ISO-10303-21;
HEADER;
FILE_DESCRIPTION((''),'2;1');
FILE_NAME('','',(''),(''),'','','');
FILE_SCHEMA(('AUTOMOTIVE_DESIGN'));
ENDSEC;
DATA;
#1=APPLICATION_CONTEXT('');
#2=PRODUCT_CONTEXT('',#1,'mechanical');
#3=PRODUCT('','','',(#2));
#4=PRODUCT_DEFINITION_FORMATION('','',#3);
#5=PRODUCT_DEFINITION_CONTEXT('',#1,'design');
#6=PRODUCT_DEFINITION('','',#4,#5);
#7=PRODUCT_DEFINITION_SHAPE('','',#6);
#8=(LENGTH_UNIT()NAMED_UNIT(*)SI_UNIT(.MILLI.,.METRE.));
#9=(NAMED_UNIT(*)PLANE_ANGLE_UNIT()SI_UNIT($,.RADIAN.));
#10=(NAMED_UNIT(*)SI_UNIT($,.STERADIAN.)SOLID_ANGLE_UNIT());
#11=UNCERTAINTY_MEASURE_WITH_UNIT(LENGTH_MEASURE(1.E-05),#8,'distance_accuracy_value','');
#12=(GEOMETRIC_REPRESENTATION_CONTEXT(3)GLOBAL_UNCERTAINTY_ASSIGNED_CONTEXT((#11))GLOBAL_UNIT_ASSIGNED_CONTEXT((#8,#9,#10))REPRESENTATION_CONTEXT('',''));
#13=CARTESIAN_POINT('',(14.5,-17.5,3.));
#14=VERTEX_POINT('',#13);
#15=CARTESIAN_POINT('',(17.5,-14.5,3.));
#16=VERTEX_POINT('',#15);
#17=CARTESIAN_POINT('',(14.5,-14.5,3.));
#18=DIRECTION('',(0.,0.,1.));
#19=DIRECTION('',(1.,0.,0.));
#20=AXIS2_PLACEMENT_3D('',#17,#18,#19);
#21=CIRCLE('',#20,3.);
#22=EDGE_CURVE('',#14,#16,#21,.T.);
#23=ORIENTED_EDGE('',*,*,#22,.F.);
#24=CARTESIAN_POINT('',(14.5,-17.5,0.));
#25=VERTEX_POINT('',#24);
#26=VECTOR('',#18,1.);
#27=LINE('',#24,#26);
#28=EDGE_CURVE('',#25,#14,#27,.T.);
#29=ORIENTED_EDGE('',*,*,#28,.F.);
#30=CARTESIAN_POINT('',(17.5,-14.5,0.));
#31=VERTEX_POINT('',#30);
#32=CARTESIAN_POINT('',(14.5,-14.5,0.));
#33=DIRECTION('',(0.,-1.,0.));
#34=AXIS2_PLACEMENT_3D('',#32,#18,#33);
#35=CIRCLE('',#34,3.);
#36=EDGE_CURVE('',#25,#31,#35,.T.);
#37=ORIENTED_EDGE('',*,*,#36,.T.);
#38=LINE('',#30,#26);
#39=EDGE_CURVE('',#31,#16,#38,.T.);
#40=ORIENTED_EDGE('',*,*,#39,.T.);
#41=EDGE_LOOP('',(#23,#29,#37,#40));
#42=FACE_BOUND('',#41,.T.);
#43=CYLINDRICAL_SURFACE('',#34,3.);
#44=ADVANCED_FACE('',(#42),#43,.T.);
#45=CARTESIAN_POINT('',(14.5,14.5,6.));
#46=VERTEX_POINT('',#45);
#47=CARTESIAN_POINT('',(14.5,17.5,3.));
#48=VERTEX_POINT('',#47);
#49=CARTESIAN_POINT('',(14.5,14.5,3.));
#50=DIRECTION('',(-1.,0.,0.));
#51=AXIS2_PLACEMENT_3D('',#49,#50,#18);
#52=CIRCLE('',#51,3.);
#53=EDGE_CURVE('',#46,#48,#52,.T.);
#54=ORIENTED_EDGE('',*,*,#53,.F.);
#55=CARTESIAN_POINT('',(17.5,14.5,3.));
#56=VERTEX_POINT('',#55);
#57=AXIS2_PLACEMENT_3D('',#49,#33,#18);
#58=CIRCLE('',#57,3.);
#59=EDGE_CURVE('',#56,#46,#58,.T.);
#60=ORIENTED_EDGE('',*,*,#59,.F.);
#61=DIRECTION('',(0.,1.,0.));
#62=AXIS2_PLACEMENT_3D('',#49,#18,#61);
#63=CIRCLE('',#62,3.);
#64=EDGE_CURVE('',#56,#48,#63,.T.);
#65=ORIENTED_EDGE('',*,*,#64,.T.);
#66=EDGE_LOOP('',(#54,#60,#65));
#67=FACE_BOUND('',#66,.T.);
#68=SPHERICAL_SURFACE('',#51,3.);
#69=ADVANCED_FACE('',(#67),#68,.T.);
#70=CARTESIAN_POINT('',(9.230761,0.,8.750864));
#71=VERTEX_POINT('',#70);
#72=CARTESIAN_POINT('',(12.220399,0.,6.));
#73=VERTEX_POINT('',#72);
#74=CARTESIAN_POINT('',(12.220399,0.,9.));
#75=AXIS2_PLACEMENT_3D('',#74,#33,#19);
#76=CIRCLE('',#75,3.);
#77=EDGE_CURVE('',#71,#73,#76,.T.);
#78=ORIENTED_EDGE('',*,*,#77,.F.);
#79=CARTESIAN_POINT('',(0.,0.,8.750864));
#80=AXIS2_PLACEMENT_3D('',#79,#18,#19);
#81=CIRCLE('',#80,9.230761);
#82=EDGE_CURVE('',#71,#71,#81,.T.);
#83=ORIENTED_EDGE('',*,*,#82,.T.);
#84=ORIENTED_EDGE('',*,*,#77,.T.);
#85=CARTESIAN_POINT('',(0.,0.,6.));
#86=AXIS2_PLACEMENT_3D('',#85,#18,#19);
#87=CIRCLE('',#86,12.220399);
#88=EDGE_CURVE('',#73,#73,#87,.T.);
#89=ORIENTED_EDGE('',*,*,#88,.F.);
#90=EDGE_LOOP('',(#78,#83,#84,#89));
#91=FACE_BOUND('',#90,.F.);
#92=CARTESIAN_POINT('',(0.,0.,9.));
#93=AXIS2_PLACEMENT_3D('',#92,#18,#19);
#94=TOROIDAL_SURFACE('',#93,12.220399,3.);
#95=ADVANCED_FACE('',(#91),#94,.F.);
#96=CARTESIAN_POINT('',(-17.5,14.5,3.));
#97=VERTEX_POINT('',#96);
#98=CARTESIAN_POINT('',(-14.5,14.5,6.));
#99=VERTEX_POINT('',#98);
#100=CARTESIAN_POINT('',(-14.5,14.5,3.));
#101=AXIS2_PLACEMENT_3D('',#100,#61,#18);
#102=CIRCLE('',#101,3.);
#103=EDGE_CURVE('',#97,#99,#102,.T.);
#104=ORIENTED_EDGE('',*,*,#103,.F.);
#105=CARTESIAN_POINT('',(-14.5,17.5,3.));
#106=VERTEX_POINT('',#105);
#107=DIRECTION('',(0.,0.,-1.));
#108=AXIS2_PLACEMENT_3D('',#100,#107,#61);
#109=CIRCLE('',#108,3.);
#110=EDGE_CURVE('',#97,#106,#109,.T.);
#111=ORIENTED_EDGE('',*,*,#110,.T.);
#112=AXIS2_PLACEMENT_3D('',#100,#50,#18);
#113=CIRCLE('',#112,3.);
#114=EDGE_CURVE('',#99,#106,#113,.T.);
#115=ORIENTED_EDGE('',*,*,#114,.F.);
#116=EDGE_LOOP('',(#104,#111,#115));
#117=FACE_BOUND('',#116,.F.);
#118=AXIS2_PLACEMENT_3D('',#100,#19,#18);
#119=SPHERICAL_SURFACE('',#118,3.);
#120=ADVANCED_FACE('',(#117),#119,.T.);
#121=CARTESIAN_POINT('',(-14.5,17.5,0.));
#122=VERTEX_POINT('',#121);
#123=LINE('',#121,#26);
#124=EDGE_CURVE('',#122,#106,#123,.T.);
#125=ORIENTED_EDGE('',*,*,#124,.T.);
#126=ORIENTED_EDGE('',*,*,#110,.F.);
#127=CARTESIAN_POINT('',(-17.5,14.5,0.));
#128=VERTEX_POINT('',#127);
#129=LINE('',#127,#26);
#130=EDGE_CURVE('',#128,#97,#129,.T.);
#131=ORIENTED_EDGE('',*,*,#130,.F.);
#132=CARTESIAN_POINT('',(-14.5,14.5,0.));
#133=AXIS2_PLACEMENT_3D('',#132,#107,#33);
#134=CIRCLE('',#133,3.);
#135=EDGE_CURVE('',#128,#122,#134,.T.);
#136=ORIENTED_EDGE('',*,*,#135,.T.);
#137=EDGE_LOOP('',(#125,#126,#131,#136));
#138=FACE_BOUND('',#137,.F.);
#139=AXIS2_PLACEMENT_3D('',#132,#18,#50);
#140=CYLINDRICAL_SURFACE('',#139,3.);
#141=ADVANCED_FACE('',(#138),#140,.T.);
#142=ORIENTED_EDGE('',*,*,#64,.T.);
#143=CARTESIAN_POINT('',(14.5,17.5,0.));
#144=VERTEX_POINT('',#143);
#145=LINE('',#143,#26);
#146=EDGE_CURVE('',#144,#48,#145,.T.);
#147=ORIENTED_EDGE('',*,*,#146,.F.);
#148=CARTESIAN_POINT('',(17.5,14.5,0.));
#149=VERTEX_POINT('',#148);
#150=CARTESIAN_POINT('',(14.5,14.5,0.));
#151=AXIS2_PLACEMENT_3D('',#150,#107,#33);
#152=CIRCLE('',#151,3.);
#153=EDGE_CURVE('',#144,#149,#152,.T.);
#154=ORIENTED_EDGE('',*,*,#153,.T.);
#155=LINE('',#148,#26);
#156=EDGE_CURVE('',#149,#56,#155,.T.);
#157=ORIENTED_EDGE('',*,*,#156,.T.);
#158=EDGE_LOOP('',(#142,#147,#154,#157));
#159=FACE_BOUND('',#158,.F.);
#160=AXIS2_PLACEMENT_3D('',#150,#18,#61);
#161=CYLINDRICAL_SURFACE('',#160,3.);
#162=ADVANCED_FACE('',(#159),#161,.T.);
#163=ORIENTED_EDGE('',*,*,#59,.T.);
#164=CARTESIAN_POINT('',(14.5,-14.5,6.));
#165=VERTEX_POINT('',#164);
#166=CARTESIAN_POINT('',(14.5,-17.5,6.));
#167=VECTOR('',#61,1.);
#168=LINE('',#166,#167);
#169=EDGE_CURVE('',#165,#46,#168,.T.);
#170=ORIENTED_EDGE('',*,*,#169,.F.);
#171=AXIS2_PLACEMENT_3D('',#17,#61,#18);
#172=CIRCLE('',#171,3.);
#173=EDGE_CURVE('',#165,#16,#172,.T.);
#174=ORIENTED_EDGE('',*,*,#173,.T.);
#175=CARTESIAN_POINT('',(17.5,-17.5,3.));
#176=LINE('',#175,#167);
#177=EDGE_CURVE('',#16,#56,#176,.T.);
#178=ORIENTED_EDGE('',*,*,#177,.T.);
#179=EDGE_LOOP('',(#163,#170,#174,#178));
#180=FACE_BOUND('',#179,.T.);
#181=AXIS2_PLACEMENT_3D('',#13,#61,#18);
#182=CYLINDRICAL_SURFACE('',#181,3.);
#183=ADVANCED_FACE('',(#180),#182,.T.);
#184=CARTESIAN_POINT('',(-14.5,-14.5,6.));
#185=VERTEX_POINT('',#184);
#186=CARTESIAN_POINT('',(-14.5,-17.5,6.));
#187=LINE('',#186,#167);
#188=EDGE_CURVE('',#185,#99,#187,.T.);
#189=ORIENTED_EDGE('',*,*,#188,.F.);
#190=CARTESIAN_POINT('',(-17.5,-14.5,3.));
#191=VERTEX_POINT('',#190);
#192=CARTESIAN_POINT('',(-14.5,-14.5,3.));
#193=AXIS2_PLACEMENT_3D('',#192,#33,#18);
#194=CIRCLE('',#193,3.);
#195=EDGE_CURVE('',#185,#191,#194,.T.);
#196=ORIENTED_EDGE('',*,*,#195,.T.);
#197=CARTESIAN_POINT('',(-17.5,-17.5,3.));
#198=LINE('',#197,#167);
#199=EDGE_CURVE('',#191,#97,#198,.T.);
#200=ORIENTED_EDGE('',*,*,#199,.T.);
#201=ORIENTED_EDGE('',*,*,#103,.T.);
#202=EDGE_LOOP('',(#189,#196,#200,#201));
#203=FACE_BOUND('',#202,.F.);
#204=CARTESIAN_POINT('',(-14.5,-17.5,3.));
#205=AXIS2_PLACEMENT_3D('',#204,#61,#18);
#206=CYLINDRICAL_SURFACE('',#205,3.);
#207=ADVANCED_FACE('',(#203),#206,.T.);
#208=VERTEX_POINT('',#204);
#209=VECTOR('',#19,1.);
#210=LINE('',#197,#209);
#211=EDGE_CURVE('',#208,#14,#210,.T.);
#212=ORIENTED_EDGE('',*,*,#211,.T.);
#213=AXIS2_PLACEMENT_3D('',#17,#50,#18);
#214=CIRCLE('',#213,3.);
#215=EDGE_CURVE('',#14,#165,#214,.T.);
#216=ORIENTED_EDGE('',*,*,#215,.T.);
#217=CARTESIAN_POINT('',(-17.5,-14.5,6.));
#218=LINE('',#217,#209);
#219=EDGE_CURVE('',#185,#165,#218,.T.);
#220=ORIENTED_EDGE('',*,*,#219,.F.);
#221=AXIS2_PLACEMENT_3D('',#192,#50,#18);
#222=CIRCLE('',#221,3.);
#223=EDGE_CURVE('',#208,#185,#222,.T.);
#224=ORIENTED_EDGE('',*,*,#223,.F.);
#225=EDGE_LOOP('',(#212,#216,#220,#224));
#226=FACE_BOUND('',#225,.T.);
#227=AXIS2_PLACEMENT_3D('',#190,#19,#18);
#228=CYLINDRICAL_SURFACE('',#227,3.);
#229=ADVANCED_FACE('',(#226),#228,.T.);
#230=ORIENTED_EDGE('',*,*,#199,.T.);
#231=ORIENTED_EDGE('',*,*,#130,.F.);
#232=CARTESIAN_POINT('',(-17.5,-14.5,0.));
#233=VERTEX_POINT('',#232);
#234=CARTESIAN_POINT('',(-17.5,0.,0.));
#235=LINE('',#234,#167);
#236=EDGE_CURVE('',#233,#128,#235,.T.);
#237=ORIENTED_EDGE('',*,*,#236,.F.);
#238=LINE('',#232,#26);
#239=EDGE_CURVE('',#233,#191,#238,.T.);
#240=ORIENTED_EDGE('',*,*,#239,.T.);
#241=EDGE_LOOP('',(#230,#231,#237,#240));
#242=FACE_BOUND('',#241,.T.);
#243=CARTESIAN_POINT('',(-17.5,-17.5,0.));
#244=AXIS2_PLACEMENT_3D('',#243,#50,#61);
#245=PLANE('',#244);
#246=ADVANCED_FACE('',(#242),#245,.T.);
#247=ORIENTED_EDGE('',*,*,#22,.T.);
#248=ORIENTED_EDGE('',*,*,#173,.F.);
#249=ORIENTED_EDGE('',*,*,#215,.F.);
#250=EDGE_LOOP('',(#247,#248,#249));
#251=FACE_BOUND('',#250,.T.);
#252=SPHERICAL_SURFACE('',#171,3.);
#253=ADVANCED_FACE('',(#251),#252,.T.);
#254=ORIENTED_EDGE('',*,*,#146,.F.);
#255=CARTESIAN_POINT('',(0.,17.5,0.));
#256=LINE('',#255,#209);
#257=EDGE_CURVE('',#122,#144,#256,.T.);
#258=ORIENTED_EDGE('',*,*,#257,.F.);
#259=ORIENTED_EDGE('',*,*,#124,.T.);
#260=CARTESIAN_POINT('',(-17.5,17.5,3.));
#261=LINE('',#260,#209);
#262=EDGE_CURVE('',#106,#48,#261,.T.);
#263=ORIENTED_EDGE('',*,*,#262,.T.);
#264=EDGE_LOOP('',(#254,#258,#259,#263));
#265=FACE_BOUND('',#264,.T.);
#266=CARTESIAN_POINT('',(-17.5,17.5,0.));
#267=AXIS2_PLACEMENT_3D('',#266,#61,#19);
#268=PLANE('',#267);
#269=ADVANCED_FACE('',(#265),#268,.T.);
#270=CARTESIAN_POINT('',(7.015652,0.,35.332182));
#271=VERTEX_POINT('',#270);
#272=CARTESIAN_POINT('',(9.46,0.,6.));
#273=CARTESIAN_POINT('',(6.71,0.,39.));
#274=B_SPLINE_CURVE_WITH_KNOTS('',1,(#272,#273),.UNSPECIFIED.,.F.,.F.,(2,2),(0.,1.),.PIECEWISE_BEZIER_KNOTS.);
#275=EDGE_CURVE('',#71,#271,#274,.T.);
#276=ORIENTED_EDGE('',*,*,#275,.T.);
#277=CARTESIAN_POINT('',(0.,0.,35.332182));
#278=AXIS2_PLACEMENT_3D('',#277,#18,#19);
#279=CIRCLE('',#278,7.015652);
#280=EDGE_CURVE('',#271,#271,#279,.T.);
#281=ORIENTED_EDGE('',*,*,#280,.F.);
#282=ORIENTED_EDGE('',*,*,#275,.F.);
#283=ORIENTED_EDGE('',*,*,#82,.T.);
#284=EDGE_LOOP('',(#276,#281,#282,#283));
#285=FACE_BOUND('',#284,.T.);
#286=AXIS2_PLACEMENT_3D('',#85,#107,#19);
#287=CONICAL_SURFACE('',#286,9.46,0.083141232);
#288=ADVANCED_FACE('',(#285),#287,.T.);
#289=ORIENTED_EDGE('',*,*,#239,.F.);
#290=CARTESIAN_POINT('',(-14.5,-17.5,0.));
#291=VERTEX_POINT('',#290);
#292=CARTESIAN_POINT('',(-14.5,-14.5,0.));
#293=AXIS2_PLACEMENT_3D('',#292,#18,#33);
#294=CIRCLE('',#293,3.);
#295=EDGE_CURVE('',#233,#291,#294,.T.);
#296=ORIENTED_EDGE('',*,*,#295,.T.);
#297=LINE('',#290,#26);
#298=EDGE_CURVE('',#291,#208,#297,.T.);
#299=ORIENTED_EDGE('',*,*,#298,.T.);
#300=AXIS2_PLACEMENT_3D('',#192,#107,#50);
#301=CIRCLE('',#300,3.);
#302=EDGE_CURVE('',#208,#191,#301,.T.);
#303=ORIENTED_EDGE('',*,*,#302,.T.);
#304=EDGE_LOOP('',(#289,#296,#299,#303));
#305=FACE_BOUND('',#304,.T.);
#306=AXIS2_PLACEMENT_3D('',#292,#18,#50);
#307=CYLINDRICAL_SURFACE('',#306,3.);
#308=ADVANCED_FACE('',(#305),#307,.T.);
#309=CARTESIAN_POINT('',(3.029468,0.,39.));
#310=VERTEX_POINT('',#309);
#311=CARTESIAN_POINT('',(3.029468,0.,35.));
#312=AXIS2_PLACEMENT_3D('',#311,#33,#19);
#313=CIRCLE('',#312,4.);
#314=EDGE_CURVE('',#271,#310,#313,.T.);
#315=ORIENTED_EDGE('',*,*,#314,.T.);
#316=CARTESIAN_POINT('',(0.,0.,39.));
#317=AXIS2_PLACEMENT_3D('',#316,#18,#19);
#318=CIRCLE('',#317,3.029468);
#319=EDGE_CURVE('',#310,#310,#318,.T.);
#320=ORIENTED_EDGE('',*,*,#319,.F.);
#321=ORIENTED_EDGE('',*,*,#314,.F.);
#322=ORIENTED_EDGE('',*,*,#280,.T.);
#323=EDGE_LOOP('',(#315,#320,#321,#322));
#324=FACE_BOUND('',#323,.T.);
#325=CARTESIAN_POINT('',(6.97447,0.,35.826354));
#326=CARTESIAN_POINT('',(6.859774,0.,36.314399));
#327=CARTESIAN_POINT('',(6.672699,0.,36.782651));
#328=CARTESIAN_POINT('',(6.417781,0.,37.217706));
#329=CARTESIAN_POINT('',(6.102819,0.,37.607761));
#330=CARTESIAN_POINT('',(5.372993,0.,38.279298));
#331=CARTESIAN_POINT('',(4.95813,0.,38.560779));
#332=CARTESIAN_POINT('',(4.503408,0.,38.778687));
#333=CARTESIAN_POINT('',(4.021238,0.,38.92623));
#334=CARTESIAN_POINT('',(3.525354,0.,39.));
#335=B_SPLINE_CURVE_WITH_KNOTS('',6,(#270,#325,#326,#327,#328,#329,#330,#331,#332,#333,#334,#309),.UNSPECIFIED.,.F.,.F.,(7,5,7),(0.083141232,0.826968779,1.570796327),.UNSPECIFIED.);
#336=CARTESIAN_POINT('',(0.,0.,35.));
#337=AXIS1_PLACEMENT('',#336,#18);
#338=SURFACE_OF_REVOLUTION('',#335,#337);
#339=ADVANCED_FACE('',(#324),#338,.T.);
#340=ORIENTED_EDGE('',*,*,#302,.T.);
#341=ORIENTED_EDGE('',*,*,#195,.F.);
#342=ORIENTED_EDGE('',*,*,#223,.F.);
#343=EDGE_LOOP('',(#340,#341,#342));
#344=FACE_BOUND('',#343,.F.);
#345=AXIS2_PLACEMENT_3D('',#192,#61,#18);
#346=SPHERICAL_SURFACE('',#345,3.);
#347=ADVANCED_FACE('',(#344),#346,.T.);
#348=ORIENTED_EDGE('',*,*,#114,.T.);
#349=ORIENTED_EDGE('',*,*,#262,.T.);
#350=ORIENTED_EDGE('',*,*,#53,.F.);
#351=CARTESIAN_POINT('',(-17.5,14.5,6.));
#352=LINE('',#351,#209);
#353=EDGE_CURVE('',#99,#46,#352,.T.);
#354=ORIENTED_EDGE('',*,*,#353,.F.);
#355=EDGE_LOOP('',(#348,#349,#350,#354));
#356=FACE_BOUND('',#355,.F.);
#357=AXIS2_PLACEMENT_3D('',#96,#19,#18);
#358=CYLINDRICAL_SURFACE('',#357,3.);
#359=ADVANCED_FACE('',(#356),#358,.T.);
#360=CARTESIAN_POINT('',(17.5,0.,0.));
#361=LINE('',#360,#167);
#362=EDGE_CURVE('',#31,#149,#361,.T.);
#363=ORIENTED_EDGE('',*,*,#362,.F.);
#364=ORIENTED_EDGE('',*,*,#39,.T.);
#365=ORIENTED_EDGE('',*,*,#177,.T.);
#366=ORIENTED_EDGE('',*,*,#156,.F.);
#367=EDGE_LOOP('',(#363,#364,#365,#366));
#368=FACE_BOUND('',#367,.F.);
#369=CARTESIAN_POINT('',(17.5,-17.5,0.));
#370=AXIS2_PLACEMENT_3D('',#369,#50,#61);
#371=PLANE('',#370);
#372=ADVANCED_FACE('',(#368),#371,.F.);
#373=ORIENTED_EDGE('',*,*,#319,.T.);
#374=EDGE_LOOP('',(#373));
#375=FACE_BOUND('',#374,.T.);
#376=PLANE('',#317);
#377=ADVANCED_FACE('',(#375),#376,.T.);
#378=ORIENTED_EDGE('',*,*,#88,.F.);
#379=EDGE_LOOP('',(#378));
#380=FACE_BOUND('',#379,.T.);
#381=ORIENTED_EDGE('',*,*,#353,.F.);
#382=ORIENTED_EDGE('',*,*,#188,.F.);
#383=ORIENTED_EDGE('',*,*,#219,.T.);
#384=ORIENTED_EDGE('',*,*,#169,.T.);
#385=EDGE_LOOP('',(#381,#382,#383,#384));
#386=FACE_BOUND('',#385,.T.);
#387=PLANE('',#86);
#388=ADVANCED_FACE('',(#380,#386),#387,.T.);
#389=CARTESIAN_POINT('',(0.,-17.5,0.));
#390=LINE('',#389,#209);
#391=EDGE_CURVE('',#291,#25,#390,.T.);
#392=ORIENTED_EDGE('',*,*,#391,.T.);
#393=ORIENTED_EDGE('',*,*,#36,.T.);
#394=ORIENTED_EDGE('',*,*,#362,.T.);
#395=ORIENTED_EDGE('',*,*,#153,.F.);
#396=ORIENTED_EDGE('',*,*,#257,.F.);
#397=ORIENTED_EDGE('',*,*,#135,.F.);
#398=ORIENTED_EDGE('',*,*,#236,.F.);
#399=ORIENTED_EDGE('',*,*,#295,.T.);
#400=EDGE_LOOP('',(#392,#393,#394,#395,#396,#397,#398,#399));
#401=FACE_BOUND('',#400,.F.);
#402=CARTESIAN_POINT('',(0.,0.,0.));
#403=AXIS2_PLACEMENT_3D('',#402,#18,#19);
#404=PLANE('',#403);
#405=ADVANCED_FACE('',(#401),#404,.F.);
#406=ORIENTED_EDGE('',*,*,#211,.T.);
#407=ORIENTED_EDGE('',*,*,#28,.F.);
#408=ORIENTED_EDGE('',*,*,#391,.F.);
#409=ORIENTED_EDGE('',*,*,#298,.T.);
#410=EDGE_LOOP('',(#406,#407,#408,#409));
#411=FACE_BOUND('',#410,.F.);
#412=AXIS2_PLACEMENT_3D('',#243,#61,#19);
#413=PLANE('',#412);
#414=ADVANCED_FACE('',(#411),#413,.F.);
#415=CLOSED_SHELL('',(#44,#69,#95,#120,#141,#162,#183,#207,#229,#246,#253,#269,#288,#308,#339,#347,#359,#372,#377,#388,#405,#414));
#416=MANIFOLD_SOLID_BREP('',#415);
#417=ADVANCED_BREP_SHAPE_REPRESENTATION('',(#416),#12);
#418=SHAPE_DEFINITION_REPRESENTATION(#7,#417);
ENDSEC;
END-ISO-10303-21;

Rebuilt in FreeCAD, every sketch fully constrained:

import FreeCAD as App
import Part
import Sketcher
from FreeCAD import Vector


def edges_at(feature, points):
    """Names of the edges that pass closest to the given points."""
    edges = feature.Shape.Edges
    near = lambda p: min(range(len(edges)), key=lambda i: edges[i].distToShape(Part.Vertex(*p))[0])
    return sorted({f"Edge{near(p) + 1}" for p in points})


def add_polygon(sketch, points):
    """Adds a closed chain of lines whose ends are joined by coincident constraints."""
    first, n = sketch.GeometryCount, len(points)
    for a, b in zip(points, points[1:] + points[:1]):
        sketch.addGeometry(Part.LineSegment(App.Vector(*a, 0), App.Vector(*b, 0)), False)
    for i in range(n):
        sketch.addConstraint(Sketcher.Constraint("Coincident", first + i, 2, first + (i + 1) % n, 1))

doc = App.newDocument("Part")
body = doc.addObject("PartDesign::Body", "Body")

# Sketch on XY plane
sketch1 = doc.addObject("Sketcher::SketchObject", "Sketch")
body.addObject(sketch1)
sketch1.AttachmentSupport = (doc.XY_Plane, [""])
sketch1.MapMode = "FlatFace"
add_polygon(sketch1, [(-18, 18), (-18, -18), (18, -18), (18, 18)])  # lines 0-3
sketch1.addConstraint(Sketcher.Constraint("Vertical", 0))
sketch1.addConstraint(Sketcher.Constraint("Horizontal", 1))
sketch1.addConstraint(Sketcher.Constraint("Vertical", 2))
sketch1.addConstraint(Sketcher.Constraint("Horizontal", 3))
sketch1.addConstraint(Sketcher.Constraint("Symmetric", 0, 2, 2, 2, -1, 1))
sketch1.addConstraint(Sketcher.Constraint("Equal", 3, 0))
sketch1.addConstraint(Sketcher.Constraint("DistanceX", 1, 1, 1, 2, 35.0))
pad1 = doc.addObject("PartDesign::Pad", "Pad")
body.addObject(pad1)
pad1.Profile = sketch1
pad1.Length = 6

# Sketch on XY plane
sketch2 = doc.addObject("Sketcher::SketchObject", "Sketch001")
body.addObject(sketch2)
sketch2.AttachmentSupport = (doc.XY_Plane, [""])
sketch2.MapMode = "FlatFace"
sketch2.AttachmentOffset = App.Placement(Vector(0, 0, 6), App.Rotation())
sketch2.addGeometry(Part.Circle(Vector(0, 0, 0), Vector(0, 0, 1), 9), False)
sketch2.addConstraint(Sketcher.Constraint("Coincident", 0, 3, -1, 1))
sketch2.addConstraint(Sketcher.Constraint("Diameter", 0, 18.92))

# Sketch on XY plane
sketch3 = doc.addObject("Sketcher::SketchObject", "Sketch002")
body.addObject(sketch3)
sketch3.AttachmentSupport = (doc.XY_Plane, [""])
sketch3.MapMode = "FlatFace"
sketch3.AttachmentOffset = App.Placement(Vector(0, 0, 39), App.Rotation())
sketch3.addGeometry(Part.Circle(Vector(0, 0, 0), Vector(0, 0, 1), 7), False)
sketch3.addConstraint(Sketcher.Constraint("Coincident", 0, 3, -1, 1))
sketch3.addConstraint(Sketcher.Constraint("Diameter", 0, 13.42))

additiveloft = doc.addObject("PartDesign::AdditiveLoft", "AdditiveLoft")
body.addObject(additiveloft)
additiveloft.Profile = sketch2
additiveloft.Sections = [sketch3]
doc.recompute()

fillet = doc.addObject("PartDesign::Fillet", "Fillet")
body.addObject(fillet)
fillet.Base = (additiveloft, edges_at(additiveloft, [(-6.71, 0, 39)]))
fillet.Radius = 4
doc.recompute()

fillet2 = doc.addObject("PartDesign::Fillet", "Fillet001")
body.addObject(fillet2)
fillet2.Base = (fillet, edges_at(fillet, [
    (0, 17.5, 6),
    (17.5, 0, 6),
    (-17.5, 0, 6),
    (0, -17.5, 6),
    (-9.46, 0, 6),
    (-17.5, -17.5, 3),
    (-17.5, 17.5, 3),
    (17.5, -17.5, 3),
    (17.5, 17.5, 3),
]))
fillet2.Radius = 3

doc.recompute()
